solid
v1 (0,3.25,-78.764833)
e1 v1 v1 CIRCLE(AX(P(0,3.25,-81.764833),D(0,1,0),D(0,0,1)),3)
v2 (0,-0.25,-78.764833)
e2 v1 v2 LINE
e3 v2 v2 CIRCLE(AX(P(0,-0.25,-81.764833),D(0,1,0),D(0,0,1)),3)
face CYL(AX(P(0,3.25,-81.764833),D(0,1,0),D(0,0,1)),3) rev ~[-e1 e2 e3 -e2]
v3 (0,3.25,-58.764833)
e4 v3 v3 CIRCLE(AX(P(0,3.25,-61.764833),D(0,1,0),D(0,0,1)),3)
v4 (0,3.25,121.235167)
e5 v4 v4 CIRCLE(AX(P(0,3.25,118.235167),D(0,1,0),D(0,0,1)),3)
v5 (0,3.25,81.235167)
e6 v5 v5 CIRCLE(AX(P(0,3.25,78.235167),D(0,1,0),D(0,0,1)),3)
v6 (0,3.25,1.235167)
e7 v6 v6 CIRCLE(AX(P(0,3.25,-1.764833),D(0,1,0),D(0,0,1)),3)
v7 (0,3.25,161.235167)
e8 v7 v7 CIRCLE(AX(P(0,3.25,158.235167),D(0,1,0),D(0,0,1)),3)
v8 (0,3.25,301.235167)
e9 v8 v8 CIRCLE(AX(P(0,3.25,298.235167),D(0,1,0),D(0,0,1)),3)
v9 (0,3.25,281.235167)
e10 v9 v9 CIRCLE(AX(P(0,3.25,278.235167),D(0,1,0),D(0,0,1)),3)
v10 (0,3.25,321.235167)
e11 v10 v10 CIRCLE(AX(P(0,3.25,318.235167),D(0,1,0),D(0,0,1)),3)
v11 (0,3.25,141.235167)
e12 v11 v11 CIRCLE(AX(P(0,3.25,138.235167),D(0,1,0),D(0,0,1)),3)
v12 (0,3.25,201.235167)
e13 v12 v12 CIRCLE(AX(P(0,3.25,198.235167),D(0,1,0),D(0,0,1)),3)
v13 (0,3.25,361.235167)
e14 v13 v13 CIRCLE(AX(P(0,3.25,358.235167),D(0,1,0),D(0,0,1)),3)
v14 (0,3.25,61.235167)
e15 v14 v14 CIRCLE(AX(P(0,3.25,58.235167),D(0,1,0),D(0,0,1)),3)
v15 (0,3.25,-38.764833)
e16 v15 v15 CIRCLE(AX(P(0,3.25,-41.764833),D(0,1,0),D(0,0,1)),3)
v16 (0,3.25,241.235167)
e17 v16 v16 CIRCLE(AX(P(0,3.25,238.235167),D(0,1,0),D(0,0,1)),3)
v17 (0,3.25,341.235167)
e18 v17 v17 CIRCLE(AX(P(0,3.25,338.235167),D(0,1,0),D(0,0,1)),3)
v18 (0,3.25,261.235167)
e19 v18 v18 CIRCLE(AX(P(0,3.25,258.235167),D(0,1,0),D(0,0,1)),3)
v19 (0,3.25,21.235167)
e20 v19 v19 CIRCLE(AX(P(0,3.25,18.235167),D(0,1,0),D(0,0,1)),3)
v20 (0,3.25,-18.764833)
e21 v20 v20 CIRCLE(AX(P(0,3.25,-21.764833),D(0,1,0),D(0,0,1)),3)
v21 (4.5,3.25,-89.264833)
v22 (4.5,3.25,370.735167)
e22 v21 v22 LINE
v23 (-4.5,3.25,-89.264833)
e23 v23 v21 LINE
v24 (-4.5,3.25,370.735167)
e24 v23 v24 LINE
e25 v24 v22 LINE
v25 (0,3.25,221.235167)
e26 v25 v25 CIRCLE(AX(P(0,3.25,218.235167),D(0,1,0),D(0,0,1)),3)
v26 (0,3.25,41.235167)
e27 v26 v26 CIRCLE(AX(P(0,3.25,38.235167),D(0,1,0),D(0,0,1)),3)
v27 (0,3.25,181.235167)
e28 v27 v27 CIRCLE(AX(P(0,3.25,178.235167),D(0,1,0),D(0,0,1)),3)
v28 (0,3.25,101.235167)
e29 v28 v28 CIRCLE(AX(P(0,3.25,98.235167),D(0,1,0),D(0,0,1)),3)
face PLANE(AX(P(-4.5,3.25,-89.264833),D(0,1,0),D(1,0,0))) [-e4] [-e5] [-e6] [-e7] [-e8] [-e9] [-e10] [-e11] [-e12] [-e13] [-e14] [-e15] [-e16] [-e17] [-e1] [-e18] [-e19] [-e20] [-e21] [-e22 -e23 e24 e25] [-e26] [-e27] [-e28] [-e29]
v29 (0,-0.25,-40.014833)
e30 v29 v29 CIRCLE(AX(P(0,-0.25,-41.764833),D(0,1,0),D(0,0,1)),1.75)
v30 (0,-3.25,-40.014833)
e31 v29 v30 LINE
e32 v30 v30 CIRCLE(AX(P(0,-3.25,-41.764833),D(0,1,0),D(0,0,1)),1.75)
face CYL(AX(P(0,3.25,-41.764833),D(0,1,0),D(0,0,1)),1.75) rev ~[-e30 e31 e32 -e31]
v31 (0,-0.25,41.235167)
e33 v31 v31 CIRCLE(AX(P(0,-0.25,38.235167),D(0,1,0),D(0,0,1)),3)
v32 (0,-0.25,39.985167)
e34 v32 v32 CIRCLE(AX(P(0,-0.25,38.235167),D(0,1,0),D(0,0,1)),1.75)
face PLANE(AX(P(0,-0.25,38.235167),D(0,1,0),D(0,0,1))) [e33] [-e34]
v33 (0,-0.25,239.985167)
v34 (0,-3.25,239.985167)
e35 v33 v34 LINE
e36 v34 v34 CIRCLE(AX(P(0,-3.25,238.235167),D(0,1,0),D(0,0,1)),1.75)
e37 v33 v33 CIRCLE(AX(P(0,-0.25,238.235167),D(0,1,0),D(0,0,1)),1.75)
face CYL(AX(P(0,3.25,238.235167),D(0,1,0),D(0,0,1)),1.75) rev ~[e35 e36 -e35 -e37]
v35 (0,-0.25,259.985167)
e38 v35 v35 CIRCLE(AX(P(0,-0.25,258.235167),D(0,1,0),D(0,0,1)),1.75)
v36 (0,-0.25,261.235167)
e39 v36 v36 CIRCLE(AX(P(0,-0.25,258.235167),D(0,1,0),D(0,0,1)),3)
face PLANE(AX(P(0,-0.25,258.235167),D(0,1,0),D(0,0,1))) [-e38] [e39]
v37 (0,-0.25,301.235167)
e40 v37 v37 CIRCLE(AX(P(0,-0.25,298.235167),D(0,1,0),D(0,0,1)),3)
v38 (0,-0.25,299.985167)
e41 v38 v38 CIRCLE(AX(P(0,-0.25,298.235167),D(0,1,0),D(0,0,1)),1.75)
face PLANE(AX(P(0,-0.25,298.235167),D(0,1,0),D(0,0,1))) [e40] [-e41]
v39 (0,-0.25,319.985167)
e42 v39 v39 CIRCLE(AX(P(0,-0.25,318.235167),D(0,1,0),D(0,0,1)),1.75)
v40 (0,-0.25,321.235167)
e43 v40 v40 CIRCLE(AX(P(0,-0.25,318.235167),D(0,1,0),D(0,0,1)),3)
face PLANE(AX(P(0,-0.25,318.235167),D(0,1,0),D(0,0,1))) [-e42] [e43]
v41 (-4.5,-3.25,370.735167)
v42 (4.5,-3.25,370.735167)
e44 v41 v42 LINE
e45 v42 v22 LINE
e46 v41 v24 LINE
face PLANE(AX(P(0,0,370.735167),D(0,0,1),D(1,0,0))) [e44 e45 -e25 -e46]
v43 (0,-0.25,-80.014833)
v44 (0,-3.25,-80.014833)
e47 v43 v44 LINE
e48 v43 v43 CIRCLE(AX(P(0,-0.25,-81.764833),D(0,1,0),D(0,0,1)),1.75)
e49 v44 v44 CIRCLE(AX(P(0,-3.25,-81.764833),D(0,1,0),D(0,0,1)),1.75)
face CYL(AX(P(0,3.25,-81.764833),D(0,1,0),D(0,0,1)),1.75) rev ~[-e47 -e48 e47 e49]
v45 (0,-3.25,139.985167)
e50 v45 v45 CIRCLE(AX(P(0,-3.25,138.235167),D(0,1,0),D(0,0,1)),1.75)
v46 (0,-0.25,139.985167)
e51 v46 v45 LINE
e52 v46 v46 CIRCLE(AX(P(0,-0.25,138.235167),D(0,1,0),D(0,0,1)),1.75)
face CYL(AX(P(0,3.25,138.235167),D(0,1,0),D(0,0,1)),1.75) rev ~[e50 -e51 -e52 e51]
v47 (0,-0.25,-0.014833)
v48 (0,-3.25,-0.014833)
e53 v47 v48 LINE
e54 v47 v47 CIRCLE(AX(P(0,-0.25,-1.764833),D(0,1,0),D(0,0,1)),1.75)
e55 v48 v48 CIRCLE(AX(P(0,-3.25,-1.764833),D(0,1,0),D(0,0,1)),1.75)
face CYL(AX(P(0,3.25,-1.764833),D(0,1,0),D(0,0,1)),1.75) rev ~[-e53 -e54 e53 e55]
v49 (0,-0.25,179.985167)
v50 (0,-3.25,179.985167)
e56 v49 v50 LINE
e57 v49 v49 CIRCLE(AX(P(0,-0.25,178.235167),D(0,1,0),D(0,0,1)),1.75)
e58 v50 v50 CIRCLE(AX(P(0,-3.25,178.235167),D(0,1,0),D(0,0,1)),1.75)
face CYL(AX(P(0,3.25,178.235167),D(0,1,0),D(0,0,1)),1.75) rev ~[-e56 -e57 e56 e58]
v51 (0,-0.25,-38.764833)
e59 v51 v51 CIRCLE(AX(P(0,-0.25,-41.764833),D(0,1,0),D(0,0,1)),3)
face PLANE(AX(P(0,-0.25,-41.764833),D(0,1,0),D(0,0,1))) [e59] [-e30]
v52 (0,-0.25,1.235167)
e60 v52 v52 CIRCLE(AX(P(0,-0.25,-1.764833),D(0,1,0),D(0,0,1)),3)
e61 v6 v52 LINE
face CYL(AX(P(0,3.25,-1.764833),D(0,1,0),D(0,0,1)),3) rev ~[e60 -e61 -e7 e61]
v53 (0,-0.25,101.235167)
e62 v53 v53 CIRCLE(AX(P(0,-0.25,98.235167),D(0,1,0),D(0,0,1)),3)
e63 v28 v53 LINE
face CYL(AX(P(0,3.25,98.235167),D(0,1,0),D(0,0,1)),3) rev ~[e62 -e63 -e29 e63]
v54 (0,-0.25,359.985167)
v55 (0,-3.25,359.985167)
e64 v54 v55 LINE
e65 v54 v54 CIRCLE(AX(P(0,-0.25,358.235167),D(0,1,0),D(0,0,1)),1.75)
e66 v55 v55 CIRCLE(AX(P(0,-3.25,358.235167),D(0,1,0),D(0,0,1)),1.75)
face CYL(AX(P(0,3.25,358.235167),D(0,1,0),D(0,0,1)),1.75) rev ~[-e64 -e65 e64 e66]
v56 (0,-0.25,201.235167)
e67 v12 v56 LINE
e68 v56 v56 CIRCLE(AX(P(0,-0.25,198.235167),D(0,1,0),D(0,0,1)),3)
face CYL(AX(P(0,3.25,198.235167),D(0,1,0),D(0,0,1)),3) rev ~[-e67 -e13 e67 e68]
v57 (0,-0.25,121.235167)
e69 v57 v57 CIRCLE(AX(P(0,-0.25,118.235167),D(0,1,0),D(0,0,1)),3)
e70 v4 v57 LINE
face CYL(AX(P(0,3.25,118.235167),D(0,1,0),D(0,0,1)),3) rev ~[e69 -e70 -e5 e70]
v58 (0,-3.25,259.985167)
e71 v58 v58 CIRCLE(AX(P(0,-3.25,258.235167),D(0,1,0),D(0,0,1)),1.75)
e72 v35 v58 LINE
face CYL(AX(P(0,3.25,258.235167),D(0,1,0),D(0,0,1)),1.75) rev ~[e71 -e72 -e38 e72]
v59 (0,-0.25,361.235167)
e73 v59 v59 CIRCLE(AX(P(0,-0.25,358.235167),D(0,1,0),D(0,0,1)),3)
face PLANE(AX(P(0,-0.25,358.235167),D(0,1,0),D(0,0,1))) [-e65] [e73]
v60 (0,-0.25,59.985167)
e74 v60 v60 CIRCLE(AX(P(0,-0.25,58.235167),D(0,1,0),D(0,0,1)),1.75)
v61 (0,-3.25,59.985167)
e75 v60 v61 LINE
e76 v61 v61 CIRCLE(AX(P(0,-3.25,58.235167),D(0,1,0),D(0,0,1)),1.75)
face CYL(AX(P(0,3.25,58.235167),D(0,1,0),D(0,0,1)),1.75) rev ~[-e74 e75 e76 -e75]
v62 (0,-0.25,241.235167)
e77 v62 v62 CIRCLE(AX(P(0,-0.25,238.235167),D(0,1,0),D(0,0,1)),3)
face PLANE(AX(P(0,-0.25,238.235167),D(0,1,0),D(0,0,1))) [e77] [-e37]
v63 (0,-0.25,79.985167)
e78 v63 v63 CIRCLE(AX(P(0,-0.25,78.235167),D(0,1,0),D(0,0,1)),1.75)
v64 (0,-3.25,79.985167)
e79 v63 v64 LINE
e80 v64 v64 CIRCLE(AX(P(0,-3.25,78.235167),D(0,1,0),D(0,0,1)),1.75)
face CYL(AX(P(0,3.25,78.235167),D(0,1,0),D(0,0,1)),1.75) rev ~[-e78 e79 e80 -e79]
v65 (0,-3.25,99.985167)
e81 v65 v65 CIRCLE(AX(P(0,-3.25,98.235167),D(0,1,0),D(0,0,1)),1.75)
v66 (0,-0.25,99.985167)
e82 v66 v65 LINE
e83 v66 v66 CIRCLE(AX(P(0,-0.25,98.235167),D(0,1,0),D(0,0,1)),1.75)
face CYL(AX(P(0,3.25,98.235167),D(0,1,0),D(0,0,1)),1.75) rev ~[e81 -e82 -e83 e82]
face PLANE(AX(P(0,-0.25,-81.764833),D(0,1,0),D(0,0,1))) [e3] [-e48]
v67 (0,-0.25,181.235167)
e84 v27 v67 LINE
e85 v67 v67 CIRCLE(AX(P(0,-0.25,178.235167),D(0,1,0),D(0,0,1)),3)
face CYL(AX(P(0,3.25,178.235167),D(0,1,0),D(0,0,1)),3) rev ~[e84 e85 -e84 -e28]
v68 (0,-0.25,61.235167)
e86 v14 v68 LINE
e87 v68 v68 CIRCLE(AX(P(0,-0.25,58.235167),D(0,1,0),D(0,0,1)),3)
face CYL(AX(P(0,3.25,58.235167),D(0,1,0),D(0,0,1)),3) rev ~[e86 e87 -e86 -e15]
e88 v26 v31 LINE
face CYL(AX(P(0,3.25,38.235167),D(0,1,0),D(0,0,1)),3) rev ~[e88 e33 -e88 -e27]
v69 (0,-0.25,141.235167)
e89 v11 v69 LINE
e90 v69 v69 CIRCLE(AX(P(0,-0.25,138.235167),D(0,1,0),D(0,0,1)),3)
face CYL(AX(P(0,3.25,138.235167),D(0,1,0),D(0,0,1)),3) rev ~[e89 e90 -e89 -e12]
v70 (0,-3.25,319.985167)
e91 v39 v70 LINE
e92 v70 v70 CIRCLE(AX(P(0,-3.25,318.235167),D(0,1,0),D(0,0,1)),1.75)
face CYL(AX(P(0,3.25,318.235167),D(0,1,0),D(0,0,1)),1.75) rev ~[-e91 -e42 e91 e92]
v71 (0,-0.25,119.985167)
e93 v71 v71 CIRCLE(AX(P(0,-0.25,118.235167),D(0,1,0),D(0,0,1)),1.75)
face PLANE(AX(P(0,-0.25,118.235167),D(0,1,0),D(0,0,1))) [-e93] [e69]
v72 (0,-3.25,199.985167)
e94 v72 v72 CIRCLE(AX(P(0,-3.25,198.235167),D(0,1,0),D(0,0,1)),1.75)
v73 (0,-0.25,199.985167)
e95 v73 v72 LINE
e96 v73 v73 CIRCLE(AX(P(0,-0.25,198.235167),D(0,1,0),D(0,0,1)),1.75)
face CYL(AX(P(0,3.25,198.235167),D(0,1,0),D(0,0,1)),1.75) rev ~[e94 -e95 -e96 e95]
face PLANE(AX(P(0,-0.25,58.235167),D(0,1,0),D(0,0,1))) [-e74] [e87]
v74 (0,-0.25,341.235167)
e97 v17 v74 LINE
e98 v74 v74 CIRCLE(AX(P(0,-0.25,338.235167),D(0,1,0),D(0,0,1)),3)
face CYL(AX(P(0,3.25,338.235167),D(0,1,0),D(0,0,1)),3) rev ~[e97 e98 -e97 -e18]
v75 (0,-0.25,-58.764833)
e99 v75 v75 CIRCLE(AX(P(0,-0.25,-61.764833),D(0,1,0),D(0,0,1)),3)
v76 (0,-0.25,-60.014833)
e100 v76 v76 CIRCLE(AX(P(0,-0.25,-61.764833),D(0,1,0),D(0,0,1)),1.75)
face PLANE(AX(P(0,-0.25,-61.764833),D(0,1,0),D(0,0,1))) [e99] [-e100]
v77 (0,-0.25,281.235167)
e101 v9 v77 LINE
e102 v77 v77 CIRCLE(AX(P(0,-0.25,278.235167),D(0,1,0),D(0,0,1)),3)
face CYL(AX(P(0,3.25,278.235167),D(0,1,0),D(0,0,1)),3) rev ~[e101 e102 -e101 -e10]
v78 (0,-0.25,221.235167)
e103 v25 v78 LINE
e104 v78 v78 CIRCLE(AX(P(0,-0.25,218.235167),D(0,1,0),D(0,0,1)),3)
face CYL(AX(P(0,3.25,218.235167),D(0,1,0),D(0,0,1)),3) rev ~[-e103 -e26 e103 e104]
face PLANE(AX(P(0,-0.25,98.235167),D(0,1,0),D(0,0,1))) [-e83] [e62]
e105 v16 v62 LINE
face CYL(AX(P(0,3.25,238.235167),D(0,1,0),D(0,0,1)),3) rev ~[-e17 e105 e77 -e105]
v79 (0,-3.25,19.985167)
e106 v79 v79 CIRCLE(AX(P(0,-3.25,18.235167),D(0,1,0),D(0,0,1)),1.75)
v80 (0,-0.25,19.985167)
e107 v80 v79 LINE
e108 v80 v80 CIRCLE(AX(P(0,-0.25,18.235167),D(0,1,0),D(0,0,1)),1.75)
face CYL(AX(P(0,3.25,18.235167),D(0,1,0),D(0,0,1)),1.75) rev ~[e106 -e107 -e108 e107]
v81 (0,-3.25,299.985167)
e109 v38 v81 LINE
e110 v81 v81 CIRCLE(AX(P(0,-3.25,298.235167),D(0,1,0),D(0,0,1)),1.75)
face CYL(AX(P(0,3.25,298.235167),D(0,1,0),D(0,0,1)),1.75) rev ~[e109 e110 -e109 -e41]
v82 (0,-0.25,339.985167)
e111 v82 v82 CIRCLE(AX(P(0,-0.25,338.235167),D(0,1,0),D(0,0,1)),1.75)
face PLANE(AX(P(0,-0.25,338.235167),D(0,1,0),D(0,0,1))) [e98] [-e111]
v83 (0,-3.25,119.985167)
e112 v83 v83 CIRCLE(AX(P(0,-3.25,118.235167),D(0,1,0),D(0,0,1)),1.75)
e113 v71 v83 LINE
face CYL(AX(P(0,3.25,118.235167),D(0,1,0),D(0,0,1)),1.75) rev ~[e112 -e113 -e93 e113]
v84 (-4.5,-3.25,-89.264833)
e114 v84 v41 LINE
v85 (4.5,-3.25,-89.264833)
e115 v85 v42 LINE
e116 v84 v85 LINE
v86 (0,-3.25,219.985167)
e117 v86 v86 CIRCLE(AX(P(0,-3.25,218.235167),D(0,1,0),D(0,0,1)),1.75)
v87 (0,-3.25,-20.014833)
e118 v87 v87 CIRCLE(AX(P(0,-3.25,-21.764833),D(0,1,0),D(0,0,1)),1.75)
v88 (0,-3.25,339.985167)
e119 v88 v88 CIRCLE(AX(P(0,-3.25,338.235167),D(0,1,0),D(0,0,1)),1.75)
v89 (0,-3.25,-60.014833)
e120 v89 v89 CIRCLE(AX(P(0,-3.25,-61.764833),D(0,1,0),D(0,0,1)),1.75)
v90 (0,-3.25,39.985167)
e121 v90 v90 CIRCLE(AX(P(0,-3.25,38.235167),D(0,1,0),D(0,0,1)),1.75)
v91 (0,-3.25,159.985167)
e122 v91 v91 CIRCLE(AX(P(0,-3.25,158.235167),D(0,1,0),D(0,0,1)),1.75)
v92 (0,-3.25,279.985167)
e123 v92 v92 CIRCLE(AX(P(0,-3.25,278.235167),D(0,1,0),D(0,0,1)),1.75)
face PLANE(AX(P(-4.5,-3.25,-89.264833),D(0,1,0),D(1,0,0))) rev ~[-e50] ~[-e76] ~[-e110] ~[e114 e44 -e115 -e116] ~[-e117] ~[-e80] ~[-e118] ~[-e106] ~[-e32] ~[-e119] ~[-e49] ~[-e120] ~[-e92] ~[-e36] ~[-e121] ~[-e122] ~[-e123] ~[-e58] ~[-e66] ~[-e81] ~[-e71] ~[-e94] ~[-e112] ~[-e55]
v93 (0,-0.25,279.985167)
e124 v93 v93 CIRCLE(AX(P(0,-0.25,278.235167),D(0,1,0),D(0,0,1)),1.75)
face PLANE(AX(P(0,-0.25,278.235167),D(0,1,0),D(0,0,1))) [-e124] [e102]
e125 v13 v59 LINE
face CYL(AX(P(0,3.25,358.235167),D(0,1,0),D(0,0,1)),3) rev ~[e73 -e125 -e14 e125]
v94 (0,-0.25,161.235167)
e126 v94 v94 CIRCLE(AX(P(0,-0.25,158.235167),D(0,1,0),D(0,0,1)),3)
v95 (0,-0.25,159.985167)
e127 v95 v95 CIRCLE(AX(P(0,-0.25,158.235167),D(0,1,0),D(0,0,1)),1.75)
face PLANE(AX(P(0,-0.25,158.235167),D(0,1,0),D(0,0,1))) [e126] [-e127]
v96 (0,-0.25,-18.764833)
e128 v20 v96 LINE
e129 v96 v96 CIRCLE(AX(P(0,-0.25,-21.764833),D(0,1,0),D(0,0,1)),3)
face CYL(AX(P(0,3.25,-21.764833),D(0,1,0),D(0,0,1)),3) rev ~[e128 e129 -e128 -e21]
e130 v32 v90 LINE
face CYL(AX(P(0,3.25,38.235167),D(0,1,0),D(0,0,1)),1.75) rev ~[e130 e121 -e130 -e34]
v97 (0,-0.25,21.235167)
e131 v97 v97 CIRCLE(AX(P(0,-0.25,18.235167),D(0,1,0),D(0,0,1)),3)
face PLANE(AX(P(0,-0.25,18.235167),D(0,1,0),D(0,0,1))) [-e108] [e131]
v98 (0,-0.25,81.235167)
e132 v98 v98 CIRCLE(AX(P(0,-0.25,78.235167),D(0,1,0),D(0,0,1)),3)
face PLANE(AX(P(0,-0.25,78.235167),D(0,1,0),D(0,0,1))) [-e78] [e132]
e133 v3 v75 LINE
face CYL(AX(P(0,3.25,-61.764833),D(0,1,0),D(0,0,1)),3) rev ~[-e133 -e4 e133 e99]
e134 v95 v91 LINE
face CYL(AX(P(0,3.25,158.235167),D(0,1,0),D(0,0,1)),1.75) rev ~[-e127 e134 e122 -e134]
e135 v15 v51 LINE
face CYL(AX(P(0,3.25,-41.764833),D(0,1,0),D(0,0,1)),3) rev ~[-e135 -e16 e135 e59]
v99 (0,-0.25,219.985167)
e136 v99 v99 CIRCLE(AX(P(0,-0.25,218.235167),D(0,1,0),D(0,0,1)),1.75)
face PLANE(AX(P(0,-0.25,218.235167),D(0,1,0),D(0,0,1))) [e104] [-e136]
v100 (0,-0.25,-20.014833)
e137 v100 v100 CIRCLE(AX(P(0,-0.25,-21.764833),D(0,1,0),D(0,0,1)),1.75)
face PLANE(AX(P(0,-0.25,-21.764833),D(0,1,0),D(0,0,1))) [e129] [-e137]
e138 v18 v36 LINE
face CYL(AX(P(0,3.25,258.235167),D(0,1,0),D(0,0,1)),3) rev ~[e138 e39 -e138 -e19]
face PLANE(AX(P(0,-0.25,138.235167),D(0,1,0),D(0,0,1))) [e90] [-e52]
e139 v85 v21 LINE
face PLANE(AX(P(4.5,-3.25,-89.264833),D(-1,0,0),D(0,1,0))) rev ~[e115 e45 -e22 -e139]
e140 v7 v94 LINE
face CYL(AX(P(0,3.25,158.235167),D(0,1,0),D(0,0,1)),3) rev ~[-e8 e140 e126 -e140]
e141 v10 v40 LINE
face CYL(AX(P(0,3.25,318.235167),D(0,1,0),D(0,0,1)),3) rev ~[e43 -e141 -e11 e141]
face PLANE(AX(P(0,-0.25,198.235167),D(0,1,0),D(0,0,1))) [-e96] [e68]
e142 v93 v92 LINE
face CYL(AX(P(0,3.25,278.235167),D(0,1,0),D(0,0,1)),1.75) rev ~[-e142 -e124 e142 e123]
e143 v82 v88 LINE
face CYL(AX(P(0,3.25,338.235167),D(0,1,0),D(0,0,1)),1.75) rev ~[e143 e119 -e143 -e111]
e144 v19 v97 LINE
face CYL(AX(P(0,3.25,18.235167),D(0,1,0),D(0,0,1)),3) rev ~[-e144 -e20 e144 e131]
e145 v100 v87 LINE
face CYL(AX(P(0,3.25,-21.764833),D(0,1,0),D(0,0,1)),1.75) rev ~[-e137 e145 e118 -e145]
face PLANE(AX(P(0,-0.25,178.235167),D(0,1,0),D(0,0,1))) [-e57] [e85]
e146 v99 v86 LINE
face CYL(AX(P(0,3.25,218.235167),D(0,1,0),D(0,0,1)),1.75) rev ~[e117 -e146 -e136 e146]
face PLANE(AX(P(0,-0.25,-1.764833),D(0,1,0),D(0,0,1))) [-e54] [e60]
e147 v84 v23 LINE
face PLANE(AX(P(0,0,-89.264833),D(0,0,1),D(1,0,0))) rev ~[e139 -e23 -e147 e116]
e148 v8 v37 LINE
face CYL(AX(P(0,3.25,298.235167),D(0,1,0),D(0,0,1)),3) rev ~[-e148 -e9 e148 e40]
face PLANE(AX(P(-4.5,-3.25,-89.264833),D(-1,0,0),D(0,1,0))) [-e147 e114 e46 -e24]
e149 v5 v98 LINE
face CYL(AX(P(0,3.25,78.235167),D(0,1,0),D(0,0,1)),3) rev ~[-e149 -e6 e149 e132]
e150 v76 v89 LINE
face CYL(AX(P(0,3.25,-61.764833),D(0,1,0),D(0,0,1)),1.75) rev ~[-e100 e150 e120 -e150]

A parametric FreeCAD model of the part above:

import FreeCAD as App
import Part
import Sketcher
Q = App.Units.Quantity


def add_polygon(sketch, points):
    """Adds a closed chain of lines whose ends are joined by coincident constraints."""
    first, n = sketch.GeometryCount, len(points)
    for a, b in zip(points, points[1:] + points[:1]):
        sketch.addGeometry(Part.LineSegment(App.Vector(*a, 0), App.Vector(*b, 0)), False)
    for i in range(n):
        sketch.addConstraint(Sketcher.Constraint("Coincident", first + i, 2, first + (i + 1) % n, 1))

doc = App.newDocument("Part")
body = doc.addObject("PartDesign::Body", "Body")

sketch1 = body.newObject("Sketcher::SketchObject", "Sketch")
sketch1.AttachmentSupport = (doc.getObject("XY_Plane"), [""])
sketch1.MapMode = "FlatFace"
sketch1.AttachmentOffset = App.Placement(App.Vector(0, 0, -89.264833), App.Rotation())
add_polygon(sketch1, [(-4, 3), (-4, -3), (4, -3), (4, 3)])
sketch1.addConstraint([
    Sketcher.Constraint("Vertical", 0),
    Sketcher.Constraint("Horizontal", 1),
    Sketcher.Constraint("Vertical", 2),
    Sketcher.Constraint("Horizontal", 3),
    Sketcher.Constraint("Symmetric", 0, 2, 2, 2, -1, 1),
    Sketcher.Constraint("DistanceX", 1, 1, 1, 2, Q("9 mm")),
    Sketcher.Constraint("DistanceY", 0, 2, 0, 1, Q("6.5 mm")),
])
pad1 = body.newObject("PartDesign::Pad", "Pad")
pad1.Profile = sketch1
pad1.Length = 460

sketch2 = body.newObject("Sketcher::SketchObject", "Sketch001")
sketch2.AttachmentSupport = (doc.getObject("XZ_Plane"), [""])
sketch2.MapMode = "FlatFace"
sketch2.AttachmentOffset = App.Placement(App.Vector(0, 0, -3.25), App.Rotation())
sketch2.addGeometry([
    Part.Circle(App.Vector(0, -81.8, 0), App.Vector(0, 0, 1), 1.8),
    Part.Circle(App.Vector(0, -61.8, 0), App.Vector(0, 0, 1), 1.8),
    Part.Circle(App.Vector(0, -41.8, 0), App.Vector(0, 0, 1), 1.8),
    Part.Circle(App.Vector(0, -21.8, 0), App.Vector(0, 0, 1), 1.8),
    Part.Circle(App.Vector(0, -1.8, 0), App.Vector(0, 0, 1), 1.8),
    Part.Circle(App.Vector(0, 18.2, 0), App.Vector(0, 0, 1), 1.8),
    Part.Circle(App.Vector(0, 38.2, 0), App.Vector(0, 0, 1), 1.8),
    Part.Circle(App.Vector(0, 58.2, 0), App.Vector(0, 0, 1), 1.8),
    Part.Circle(App.Vector(0, 78.2, 0), App.Vector(0, 0, 1), 1.8),
    Part.Circle(App.Vector(0, 98.2, 0), App.Vector(0, 0, 1), 1.8),
    Part.Circle(App.Vector(0, 118.2, 0), App.Vector(0, 0, 1), 1.8),
    Part.Circle(App.Vector(0, 138.2, 0), App.Vector(0, 0, 1), 1.8),
    Part.Circle(App.Vector(0, 158.2, 0), App.Vector(0, 0, 1), 1.8),
    Part.Circle(App.Vector(0, 178.2, 0), App.Vector(0, 0, 1), 1.8),
    Part.Circle(App.Vector(0, 198.2, 0), App.Vector(0, 0, 1), 1.8),
    Part.Circle(App.Vector(0, 218.2, 0), App.Vector(0, 0, 1), 1.8),
    Part.Circle(App.Vector(0, 238.2, 0), App.Vector(0, 0, 1), 1.8),
    Part.Circle(App.Vector(0, 258.2, 0), App.Vector(0, 0, 1), 1.8),
    Part.Circle(App.Vector(0, 278.2, 0), App.Vector(0, 0, 1), 1.8),
    Part.Circle(App.Vector(0, 298.2, 0), App.Vector(0, 0, 1), 1.8),
    Part.Circle(App.Vector(0, 318.2, 0), App.Vector(0, 0, 1), 1.8),
    Part.Circle(App.Vector(0, 338.2, 0), App.Vector(0, 0, 1), 1.8),
    Part.Circle(App.Vector(0, 358.2, 0), App.Vector(0, 0, 1), 1.8),
    Part.Circle(App.Vector(0, 378.2, 0), App.Vector(0, 0, 1), 1.8),
    Part.Circle(App.Vector(0, 398.2, 0), App.Vector(0, 0, 1), 1.8),
    Part.Circle(App.Vector(0, 418.2, 0), App.Vector(0, 0, 1), 1.8),
    Part.Circle(App.Vector(0, 438.2, 0), App.Vector(0, 0, 1), 1.8),
    Part.Circle(App.Vector(0, 458.2, 0), App.Vector(0, 0, 1), 1.8),
    Part.Circle(App.Vector(0, 478.2, 0), App.Vector(0, 0, 1), 1.8),
    Part.Circle(App.Vector(0, 498.2, 0), App.Vector(0, 0, 1), 1.8),
    Part.Circle(App.Vector(0, 518.2, 0), App.Vector(0, 0, 1), 1.8),
    Part.Circle(App.Vector(0, 538.2, 0), App.Vector(0, 0, 1), 1.8),
    Part.Circle(App.Vector(0, 558.2, 0), App.Vector(0, 0, 1), 1.8),
    Part.Circle(App.Vector(0, 578.2, 0), App.Vector(0, 0, 1), 1.8),
    Part.Circle(App.Vector(0, 598.2, 0), App.Vector(0, 0, 1), 1.8),
    Part.Circle(App.Vector(0, 618.2, 0), App.Vector(0, 0, 1), 1.8),
    Part.Circle(App.Vector(0, 638.2, 0), App.Vector(0, 0, 1), 1.8),
    Part.Circle(App.Vector(0, 658.2, 0), App.Vector(0, 0, 1), 1.8),
    Part.Circle(App.Vector(0, 678.2, 0), App.Vector(0, 0, 1), 1.8),
    Part.Circle(App.Vector(0, 698.2, 0), App.Vector(0, 0, 1), 1.8),
    Part.Circle(App.Vector(0, 718.2, 0), App.Vector(0, 0, 1), 1.8),
    Part.Circle(App.Vector(0, 738.2, 0), App.Vector(0, 0, 1), 1.8),
    Part.Circle(App.Vector(0, 758.2, 0), App.Vector(0, 0, 1), 1.8),
    Part.Circle(App.Vector(0, 778.2, 0), App.Vector(0, 0, 1), 1.8),
    Part.Circle(App.Vector(0, 798.2, 0), App.Vector(0, 0, 1), 1.8),
    Part.Circle(App.Vector(0, 818.2, 0), App.Vector(0, 0, 1), 1.8),
    Part.Circle(App.Vector(0, 838.2, 0), App.Vector(0, 0, 1), 1.8),
    Part.Circle(App.Vector(0, 858.2, 0), App.Vector(0, 0, 1), 1.8),
    Part.Circle(App.Vector(0, 878.2, 0), App.Vector(0, 0, 1), 1.8),
    Part.Circle(App.Vector(0, 898.2, 0), App.Vector(0, 0, 1), 1.8),
    Part.Circle(App.Vector(0, 918.2, 0), App.Vector(0, 0, 1), 1.8),
    Part.Circle(App.Vector(0, 938.2, 0), App.Vector(0, 0, 1), 1.8),
    Part.Circle(App.Vector(0, 958.2, 0), App.Vector(0, 0, 1), 1.8),
    Part.Circle(App.Vector(0, 978.2, 0), App.Vector(0, 0, 1), 1.8),
    Part.Circle(App.Vector(0, 998.2, 0), App.Vector(0, 0, 1), 1.8),
    Part.Circle(App.Vector(0, 1018.2, 0), App.Vector(0, 0, 1), 1.8),
    Part.Circle(App.Vector(0, 1038.2, 0), App.Vector(0, 0, 1), 1.8),
    Part.Circle(App.Vector(0, 1058.2, 0), App.Vector(0, 0, 1), 1.8),
    Part.Circle(App.Vector(0, 1078.2, 0), App.Vector(0, 0, 1), 1.8),
    Part.Circle(App.Vector(0, 1098.2, 0), App.Vector(0, 0, 1), 1.8),
], False)
sketch2.addConstraint([
    Sketcher.Constraint("Equal", 0, 1),
    Sketcher.Constraint("Equal", 1, 2),
    Sketcher.Constraint("Equal", 2, 3),
    Sketcher.Constraint("Equal", 3, 4),
    Sketcher.Constraint("Equal", 4, 5),
    Sketcher.Constraint("Equal", 5, 6),
    Sketcher.Constraint("Equal", 6, 7),
    Sketcher.Constraint("Equal", 7, 8),
    Sketcher.Constraint("Equal", 8, 9),
    Sketcher.Constraint("Equal", 9, 10),
    Sketcher.Constraint("Equal", 10, 11),
    Sketcher.Constraint("Equal", 11, 12),
    Sketcher.Constraint("Equal", 12, 13),
    Sketcher.Constraint("Equal", 13, 14),
    Sketcher.Constraint("Equal", 14, 15),
    Sketcher.Constraint("Equal", 15, 16),
    Sketcher.Constraint("Equal", 16, 17),
    Sketcher.Constraint("Equal", 17, 18),
    Sketcher.Constraint("Equal", 18, 19),
    Sketcher.Constraint("Equal", 19, 20),
    Sketcher.Constraint("Equal", 20, 21),
    Sketcher.Constraint("Equal", 21, 22),
    Sketcher.Constraint("Equal", 22, 23),
    Sketcher.Constraint("Equal", 23, 24),
    Sketcher.Constraint("Equal", 24, 25),
    Sketcher.Constraint("Equal", 25, 26),
    Sketcher.Constraint("Equal", 26, 27),
    Sketcher.Constraint("Equal", 27, 28),
    Sketcher.Constraint("Equal", 28, 29),
    Sketcher.Constraint("Equal", 29, 30),
    Sketcher.Constraint("Equal", 30, 31),
    Sketcher.Constraint("Equal", 31, 32),
    Sketcher.Constraint("Equal", 32, 33),
    Sketcher.Constraint("Equal", 33, 34),
    Sketcher.Constraint("Equal", 34, 35),
    Sketcher.Constraint("Equal", 35, 36),
    Sketcher.Constraint("Equal", 36, 37),
    Sketcher.Constraint("Equal", 37, 38),
    Sketcher.Constraint("Equal", 38, 39),
    Sketcher.Constraint("Equal", 39, 40),
    Sketcher.Constraint("Equal", 40, 41),
    Sketcher.Constraint("Equal", 41, 42),
    Sketcher.Constraint("Equal", 42, 43),
    Sketcher.Constraint("Equal", 43, 44),
    Sketcher.Constraint("Equal", 44, 45),
    Sketcher.Constraint("Equal", 45, 46),
    Sketcher.Constraint("Equal", 46, 47),
    Sketcher.Constraint("Equal", 47, 48),
    Sketcher.Constraint("Equal", 48, 49),
    Sketcher.Constraint("Equal", 49, 50),
    Sketcher.Constraint("Equal", 50, 51),
    Sketcher.Constraint("Equal", 51, 52),
    Sketcher.Constraint("Equal", 52, 53),
    Sketcher.Constraint("Equal", 53, 54),
    Sketcher.Constraint("Equal", 54, 55),
    Sketcher.Constraint("Equal", 55, 56),
    Sketcher.Constraint("Equal", 56, 57),
    Sketcher.Constraint("Equal", 57, 58),
    Sketcher.Constraint("Equal", 58, 59),
    Sketcher.Constraint("PointOnObject", 0, 3, -2),
    Sketcher.Constraint("PointOnObject", 1, 3, -2),
    Sketcher.Constraint("PointOnObject", 2, 3, -2),
    Sketcher.Constraint("PointOnObject", 3, 3, -2),
    Sketcher.Constraint("PointOnObject", 4, 3, -2),
    Sketcher.Constraint("PointOnObject", 5, 3, -2),
    Sketcher.Constraint("PointOnObject", 6, 3, -2),
    Sketcher.Constraint("PointOnObject", 7, 3, -2),
    Sketcher.Constraint("PointOnObject", 8, 3, -2),
    Sketcher.Constraint("PointOnObject", 9, 3, -2),
    Sketcher.Constraint("PointOnObject", 10, 3, -2),
    Sketcher.Constraint("PointOnObject", 11, 3, -2),
    Sketcher.Constraint("PointOnObject", 12, 3, -2),
    Sketcher.Constraint("PointOnObject", 13, 3, -2),
    Sketcher.Constraint("PointOnObject", 14, 3, -2),
    Sketcher.Constraint("PointOnObject", 15, 3, -2),
    Sketcher.Constraint("PointOnObject", 16, 3, -2),
    Sketcher.Constraint("PointOnObject", 17, 3, -2),
    Sketcher.Constraint("PointOnObject", 18, 3, -2),
    Sketcher.Constraint("PointOnObject", 19, 3, -2),
    Sketcher.Constraint("PointOnObject", 20, 3, -2),
    Sketcher.Constraint("PointOnObject", 21, 3, -2),
    Sketcher.Constraint("PointOnObject", 22, 3, -2),
    Sketcher.Constraint("PointOnObject", 23, 3, -2),
    Sketcher.Constraint("PointOnObject", 24, 3, -2),
    Sketcher.Constraint("PointOnObject", 25, 3, -2),
    Sketcher.Constraint("PointOnObject", 26, 3, -2),
    Sketcher.Constraint("PointOnObject", 27, 3, -2),
    Sketcher.Constraint("PointOnObject", 28, 3, -2),
    Sketcher.Constraint("PointOnObject", 29, 3, -2),
    Sketcher.Constraint("PointOnObject", 30, 3, -2),
    Sketcher.Constraint("PointOnObject", 31, 3, -2),
    Sketcher.Constraint("PointOnObject", 32, 3, -2),
    Sketcher.Constraint("PointOnObject", 33, 3, -2),
    Sketcher.Constraint("PointOnObject", 34, 3, -2),
    Sketcher.Constraint("PointOnObject", 35, 3, -2),
    Sketcher.Constraint("PointOnObject", 36, 3, -2),
    Sketcher.Constraint("PointOnObject", 37, 3, -2),
    Sketcher.Constraint("PointOnObject", 38, 3, -2),
    Sketcher.Constraint("PointOnObject", 39, 3, -2),
    Sketcher.Constraint("PointOnObject", 40, 3, -2),
    Sketcher.Constraint("PointOnObject", 41, 3, -2),
    Sketcher.Constraint("PointOnObject", 42, 3, -2),
    Sketcher.Constraint("PointOnObject", 43, 3, -2),
    Sketcher.Constraint("PointOnObject", 44, 3, -2),
    Sketcher.Constraint("PointOnObject", 45, 3, -2),
    Sketcher.Constraint("PointOnObject", 46, 3, -2),
    Sketcher.Constraint("PointOnObject", 47, 3, -2),
    Sketcher.Constraint("PointOnObject", 48, 3, -2),
    Sketcher.Constraint("PointOnObject", 49, 3, -2),
    Sketcher.Constraint("PointOnObject", 50, 3, -2),
    Sketcher.Constraint("PointOnObject", 51, 3, -2),
    Sketcher.Constraint("PointOnObject", 52, 3, -2),
    Sketcher.Constraint("PointOnObject", 53, 3, -2),
    Sketcher.Constraint("PointOnObject", 54, 3, -2),
    Sketcher.Constraint("PointOnObject", 55, 3, -2),
    Sketcher.Constraint("PointOnObject", 56, 3, -2),
    Sketcher.Constraint("PointOnObject", 57, 3, -2),
    Sketcher.Constraint("PointOnObject", 58, 3, -2),
    Sketcher.Constraint("PointOnObject", 59, 3, -2),
    Sketcher.Constraint("Diameter", 0, Q("3.5 mm")),
    Sketcher.Constraint("DistanceY", 0, 3, 1, 3, Q("20 mm")),
    Sketcher.Constraint("DistanceY", 1, 3, 2, 3, Q("20 mm")),
    Sketcher.Constraint("DistanceY", 2, 3, 3, 3, Q("20 mm")),
    Sketcher.Constraint("DistanceY", 3, 3, 4, 3, Q("20 mm")),
    Sketcher.Constraint("DistanceY", 4, 3, 5, 3, Q("20 mm")),
    Sketcher.Constraint("DistanceY", 5, 3, 6, 3, Q("20 mm")),
    Sketcher.Constraint("DistanceY", 6, 3, 7, 3, Q("20 mm")),
    Sketcher.Constraint("DistanceY", 7, 3, 8, 3, Q("20 mm")),
    Sketcher.Constraint("DistanceY", 8, 3, 9, 3, Q("20 mm")),
    Sketcher.Constraint("DistanceY", 9, 3, 10, 3, Q("20 mm")),
    Sketcher.Constraint("DistanceY", 10, 3, 11, 3, Q("20 mm")),
    Sketcher.Constraint("DistanceY", 11, 3, 12, 3, Q("20 mm")),
    Sketcher.Constraint("DistanceY", 12, 3, 13, 3, Q("20 mm")),
    Sketcher.Constraint("DistanceY", 13, 3, 14, 3, Q("20 mm")),
    Sketcher.Constraint("DistanceY", 14, 3, 15, 3, Q("20 mm")),
    Sketcher.Constraint("DistanceY", 15, 3, 16, 3, Q("20 mm")),
    Sketcher.Constraint("DistanceY", 16, 3, 17, 3, Q("20 mm")),
    Sketcher.Constraint("DistanceY", 17, 3, 18, 3, Q("20 mm")),
    Sketcher.Constraint("DistanceY", 18, 3, 19, 3, Q("20 mm")),
    Sketcher.Constraint("DistanceY", 19, 3, 20, 3, Q("20 mm")),
    Sketcher.Constraint("DistanceY", 20, 3, 21, 3, Q("20 mm")),
    Sketcher.Constraint("DistanceY", 21, 3, 22, 3, Q("20 mm")),
    Sketcher.Constraint("DistanceY", 22, 3, 23, 3, Q("20 mm")),
    Sketcher.Constraint("DistanceY", 23, 3, 24, 3, Q("20 mm")),
    Sketcher.Constraint("DistanceY", 24, 3, 25, 3, Q("20 mm")),
    Sketcher.Constraint("DistanceY", 25, 3, 26, 3, Q("20 mm")),
    Sketcher.Constraint("DistanceY", 26, 3, 27, 3, Q("20 mm")),
    Sketcher.Constraint("DistanceY", 27, 3, 28, 3, Q("20 mm")),
    Sketcher.Constraint("DistanceY", 28, 3, 29, 3, Q("20 mm")),
    Sketcher.Constraint("DistanceY", 29, 3, 30, 3, Q("20 mm")),
    Sketcher.Constraint("DistanceY", 30, 3, 31, 3, Q("20 mm")),
    Sketcher.Constraint("DistanceY", 31, 3, 32, 3, Q("20 mm")),
    Sketcher.Constraint("DistanceY", 32, 3, 33, 3, Q("20 mm")),
    Sketcher.Constraint("DistanceY", 33, 3, 34, 3, Q("20 mm")),
    Sketcher.Constraint("DistanceY", 34, 3, 35, 3, Q("20 mm")),
    Sketcher.Constraint("DistanceY", 35, 3, 36, 3, Q("20 mm")),
    Sketcher.Constraint("DistanceY", 36, 3, 37, 3, Q("20 mm")),
    Sketcher.Constraint("DistanceY", 37, 3, 38, 3, Q("20 mm")),
    Sketcher.Constraint("DistanceY", 38, 3, 39, 3, Q("20 mm")),
    Sketcher.Constraint("DistanceY", 39, 3, 40, 3, Q("20 mm")),
    Sketcher.Constraint("DistanceY", 40, 3, 41, 3, Q("20 mm")),
    Sketcher.Constraint("DistanceY", 41, 3, 42, 3, Q("20 mm")),
    Sketcher.Constraint("DistanceY", 42, 3, 43, 3, Q("20 mm")),
    Sketcher.Constraint("DistanceY", 43, 3, 44, 3, Q("20 mm")),
    Sketcher.Constraint("DistanceY", 44, 3, 45, 3, Q("20 mm")),
    Sketcher.Constraint("DistanceY", 45, 3, 46, 3, Q("20 mm")),
    Sketcher.Constraint("DistanceY", 46, 3, 47, 3, Q("20 mm")),
    Sketcher.Constraint("DistanceY", 47, 3, 48, 3, Q("20 mm")),
    Sketcher.Constraint("DistanceY", 48, 3, 49, 3, Q("20 mm")),
    Sketcher.Constraint("DistanceY", 49, 3, 50, 3, Q("20 mm")),
    Sketcher.Constraint("DistanceY", 50, 3, 51, 3, Q("20 mm")),
    Sketcher.Constraint("DistanceY", 51, 3, 52, 3, Q("20 mm")),
    Sketcher.Constraint("DistanceY", 52, 3, 53, 3, Q("20 mm")),
    Sketcher.Constraint("DistanceY", 53, 3, 54, 3, Q("20 mm")),
    Sketcher.Constraint("DistanceY", 54, 3, 55, 3, Q("20 mm")),
    Sketcher.Constraint("DistanceY", 55, 3, 56, 3, Q("20 mm")),
    Sketcher.Constraint("DistanceY", 56, 3, 57, 3, Q("20 mm")),
    Sketcher.Constraint("DistanceY", 57, 3, 58, 3, Q("20 mm")),
    Sketcher.Constraint("DistanceY", 58, 3, 59, 3, Q("20 mm")),
    Sketcher.Constraint("DistanceY", 0, 3, -1, 1, Q("81.764833 mm")),
])
pocket1 = body.newObject("PartDesign::Pocket", "Pocket")
pocket1.Profile = sketch2
pocket1.Type = "ThroughAll"
pocket1.Reversed = True

sketch3 = body.newObject("Sketcher::SketchObject", "Sketch002")
sketch3.AttachmentSupport = (doc.getObject("XZ_Plane"), [""])
sketch3.MapMode = "FlatFace"
sketch3.AttachmentOffset = App.Placement(App.Vector(0, 0, -3.25), App.Rotation())
sketch3.addGeometry([
    Part.Circle(App.Vector(0, -81.8, 0), App.Vector(0, 0, 1), 3),
    Part.Circle(App.Vector(0, -61.8, 0), App.Vector(0, 0, 1), 3),
    Part.Circle(App.Vector(0, -41.8, 0), App.Vector(0, 0, 1), 3),
    Part.Circle(App.Vector(0, -21.8, 0), App.Vector(0, 0, 1), 3),
    Part.Circle(App.Vector(0, -1.8, 0), App.Vector(0, 0, 1), 3),
    Part.Circle(App.Vector(0, 18.2, 0), App.Vector(0, 0, 1), 3),
    Part.Circle(App.Vector(0, 38.2, 0), App.Vector(0, 0, 1), 3),
    Part.Circle(App.Vector(0, 58.2, 0), App.Vector(0, 0, 1), 3),
    Part.Circle(App.Vector(0, 78.2, 0), App.Vector(0, 0, 1), 3),
    Part.Circle(App.Vector(0, 98.2, 0), App.Vector(0, 0, 1), 3),
    Part.Circle(App.Vector(0, 118.2, 0), App.Vector(0, 0, 1), 3),
    Part.Circle(App.Vector(0, 138.2, 0), App.Vector(0, 0, 1), 3),
    Part.Circle(App.Vector(0, 158.2, 0), App.Vector(0, 0, 1), 3),
    Part.Circle(App.Vector(0, 178.2, 0), App.Vector(0, 0, 1), 3),
    Part.Circle(App.Vector(0, 198.2, 0), App.Vector(0, 0, 1), 3),
    Part.Circle(App.Vector(0, 218.2, 0), App.Vector(0, 0, 1), 3),
    Part.Circle(App.Vector(0, 238.2, 0), App.Vector(0, 0, 1), 3),
    Part.Circle(App.Vector(0, 258.2, 0), App.Vector(0, 0, 1), 3),
    Part.Circle(App.Vector(0, 278.2, 0), App.Vector(0, 0, 1), 3),
    Part.Circle(App.Vector(0, 298.2, 0), App.Vector(0, 0, 1), 3),
    Part.Circle(App.Vector(0, 318.2, 0), App.Vector(0, 0, 1), 3),
    Part.Circle(App.Vector(0, 338.2, 0), App.Vector(0, 0, 1), 3),
    Part.Circle(App.Vector(0, 358.2, 0), App.Vector(0, 0, 1), 3),
    Part.Circle(App.Vector(0, 378.2, 0), App.Vector(0, 0, 1), 3),
    Part.Circle(App.Vector(0, 398.2, 0), App.Vector(0, 0, 1), 3),
    Part.Circle(App.Vector(0, 418.2, 0), App.Vector(0, 0, 1), 3),
    Part.Circle(App.Vector(0, 438.2, 0), App.Vector(0, 0, 1), 3),
    Part.Circle(App.Vector(0, 458.2, 0), App.Vector(0, 0, 1), 3),
    Part.Circle(App.Vector(0, 478.2, 0), App.Vector(0, 0, 1), 3),
    Part.Circle(App.Vector(0, 498.2, 0), App.Vector(0, 0, 1), 3),
    Part.Circle(App.Vector(0, 518.2, 0), App.Vector(0, 0, 1), 3),
    Part.Circle(App.Vector(0, 538.2, 0), App.Vector(0, 0, 1), 3),
    Part.Circle(App.Vector(0, 558.2, 0), App.Vector(0, 0, 1), 3),
    Part.Circle(App.Vector(0, 578.2, 0), App.Vector(0, 0, 1), 3),
    Part.Circle(App.Vector(0, 598.2, 0), App.Vector(0, 0, 1), 3),
    Part.Circle(App.Vector(0, 618.2, 0), App.Vector(0, 0, 1), 3),
    Part.Circle(App.Vector(0, 638.2, 0), App.Vector(0, 0, 1), 3),
    Part.Circle(App.Vector(0, 658.2, 0), App.Vector(0, 0, 1), 3),
    Part.Circle(App.Vector(0, 678.2, 0), App.Vector(0, 0, 1), 3),
    Part.Circle(App.Vector(0, 698.2, 0), App.Vector(0, 0, 1), 3),
    Part.Circle(App.Vector(0, 718.2, 0), App.Vector(0, 0, 1), 3),
    Part.Circle(App.Vector(0, 738.2, 0), App.Vector(0, 0, 1), 3),
    Part.Circle(App.Vector(0, 758.2, 0), App.Vector(0, 0, 1), 3),
    Part.Circle(App.Vector(0, 778.2, 0), App.Vector(0, 0, 1), 3),
    Part.Circle(App.Vector(0, 798.2, 0), App.Vector(0, 0, 1), 3),
    Part.Circle(App.Vector(0, 818.2, 0), App.Vector(0, 0, 1), 3),
    Part.Circle(App.Vector(0, 838.2, 0), App.Vector(0, 0, 1), 3),
    Part.Circle(App.Vector(0, 858.2, 0), App.Vector(0, 0, 1), 3),
    Part.Circle(App.Vector(0, 878.2, 0), App.Vector(0, 0, 1), 3),
    Part.Circle(App.Vector(0, 898.2, 0), App.Vector(0, 0, 1), 3),
    Part.Circle(App.Vector(0, 918.2, 0), App.Vector(0, 0, 1), 3),
    Part.Circle(App.Vector(0, 938.2, 0), App.Vector(0, 0, 1), 3),
    Part.Circle(App.Vector(0, 958.2, 0), App.Vector(0, 0, 1), 3),
    Part.Circle(App.Vector(0, 978.2, 0), App.Vector(0, 0, 1), 3),
    Part.Circle(App.Vector(0, 998.2, 0), App.Vector(0, 0, 1), 3),
    Part.Circle(App.Vector(0, 1018.2, 0), App.Vector(0, 0, 1), 3),
    Part.Circle(App.Vector(0, 1038.2, 0), App.Vector(0, 0, 1), 3),
    Part.Circle(App.Vector(0, 1058.2, 0), App.Vector(0, 0, 1), 3),
    Part.Circle(App.Vector(0, 1078.2, 0), App.Vector(0, 0, 1), 3),
    Part.Circle(App.Vector(0, 1098.2, 0), App.Vector(0, 0, 1), 3),
], False)
sketch3.addConstraint([
    Sketcher.Constraint("Equal", 0, 1),
    Sketcher.Constraint("Equal", 1, 2),
    Sketcher.Constraint("Equal", 2, 3),
    Sketcher.Constraint("Equal", 3, 4),
    Sketcher.Constraint("Equal", 4, 5),
    Sketcher.Constraint("Equal", 5, 6),
    Sketcher.Constraint("Equal", 6, 7),
    Sketcher.Constraint("Equal", 7, 8),
    Sketcher.Constraint("Equal", 8, 9),
    Sketcher.Constraint("Equal", 9, 10),
    Sketcher.Constraint("Equal", 10, 11),
    Sketcher.Constraint("Equal", 11, 12),
    Sketcher.Constraint("Equal", 12, 13),
    Sketcher.Constraint("Equal", 13, 14),
    Sketcher.Constraint("Equal", 14, 15),
    Sketcher.Constraint("Equal", 15, 16),
    Sketcher.Constraint("Equal", 16, 17),
    Sketcher.Constraint("Equal", 17, 18),
    Sketcher.Constraint("Equal", 18, 19),
    Sketcher.Constraint("Equal", 19, 20),
    Sketcher.Constraint("Equal", 20, 21),
    Sketcher.Constraint("Equal", 21, 22),
    Sketcher.Constraint("Equal", 22, 23),
    Sketcher.Constraint("Equal", 23, 24),
    Sketcher.Constraint("Equal", 24, 25),
    Sketcher.Constraint("Equal", 25, 26),
    Sketcher.Constraint("Equal", 26, 27),
    Sketcher.Constraint("Equal", 27, 28),
    Sketcher.Constraint("Equal", 28, 29),
    Sketcher.Constraint("Equal", 29, 30),
    Sketcher.Constraint("Equal", 30, 31),
    Sketcher.Constraint("Equal", 31, 32),
    Sketcher.Constraint("Equal", 32, 33),
    Sketcher.Constraint("Equal", 33, 34),
    Sketcher.Constraint("Equal", 34, 35),
    Sketcher.Constraint("Equal", 35, 36),
    Sketcher.Constraint("Equal", 36, 37),
    Sketcher.Constraint("Equal", 37, 38),
    Sketcher.Constraint("Equal", 38, 39),
    Sketcher.Constraint("Equal", 39, 40),
    Sketcher.Constraint("Equal", 40, 41),
    Sketcher.Constraint("Equal", 41, 42),
    Sketcher.Constraint("Equal", 42, 43),
    Sketcher.Constraint("Equal", 43, 44),
    Sketcher.Constraint("Equal", 44, 45),
    Sketcher.Constraint("Equal", 45, 46),
    Sketcher.Constraint("Equal", 46, 47),
    Sketcher.Constraint("Equal", 47, 48),
    Sketcher.Constraint("Equal", 48, 49),
    Sketcher.Constraint("Equal", 49, 50),
    Sketcher.Constraint("Equal", 50, 51),
    Sketcher.Constraint("Equal", 51, 52),
    Sketcher.Constraint("Equal", 52, 53),
    Sketcher.Constraint("Equal", 53, 54),
    Sketcher.Constraint("Equal", 54, 55),
    Sketcher.Constraint("Equal", 55, 56),
    Sketcher.Constraint("Equal", 56, 57),
    Sketcher.Constraint("Equal", 57, 58),
    Sketcher.Constraint("Equal", 58, 59),
    Sketcher.Constraint("PointOnObject", 0, 3, -2),
    Sketcher.Constraint("PointOnObject", 1, 3, -2),
    Sketcher.Constraint("PointOnObject", 2, 3, -2),
    Sketcher.Constraint("PointOnObject", 3, 3, -2),
    Sketcher.Constraint("PointOnObject", 4, 3, -2),
    Sketcher.Constraint("PointOnObject", 5, 3, -2),
    Sketcher.Constraint("PointOnObject", 6, 3, -2),
    Sketcher.Constraint("PointOnObject", 7, 3, -2),
    Sketcher.Constraint("PointOnObject", 8, 3, -2),
    Sketcher.Constraint("PointOnObject", 9, 3, -2),
    Sketcher.Constraint("PointOnObject", 10, 3, -2),
    Sketcher.Constraint("PointOnObject", 11, 3, -2),
    Sketcher.Constraint("PointOnObject", 12, 3, -2),
    Sketcher.Constraint("PointOnObject", 13, 3, -2),
    Sketcher.Constraint("PointOnObject", 14, 3, -2),
    Sketcher.Constraint("PointOnObject", 15, 3, -2),
    Sketcher.Constraint("PointOnObject", 16, 3, -2),
    Sketcher.Constraint("PointOnObject", 17, 3, -2),
    Sketcher.Constraint("PointOnObject", 18, 3, -2),
    Sketcher.Constraint("PointOnObject", 19, 3, -2),
    Sketcher.Constraint("PointOnObject", 20, 3, -2),
    Sketcher.Constraint("PointOnObject", 21, 3, -2),
    Sketcher.Constraint("PointOnObject", 22, 3, -2),
    Sketcher.Constraint("PointOnObject", 23, 3, -2),
    Sketcher.Constraint("PointOnObject", 24, 3, -2),
    Sketcher.Constraint("PointOnObject", 25, 3, -2),
    Sketcher.Constraint("PointOnObject", 26, 3, -2),
    Sketcher.Constraint("PointOnObject", 27, 3, -2),
    Sketcher.Constraint("PointOnObject", 28, 3, -2),
    Sketcher.Constraint("PointOnObject", 29, 3, -2),
    Sketcher.Constraint("PointOnObject", 30, 3, -2),
    Sketcher.Constraint("PointOnObject", 31, 3, -2),
    Sketcher.Constraint("PointOnObject", 32, 3, -2),
    Sketcher.Constraint("PointOnObject", 33, 3, -2),
    Sketcher.Constraint("PointOnObject", 34, 3, -2),
    Sketcher.Constraint("PointOnObject", 35, 3, -2),
    Sketcher.Constraint("PointOnObject", 36, 3, -2),
    Sketcher.Constraint("PointOnObject", 37, 3, -2),
    Sketcher.Constraint("PointOnObject", 38, 3, -2),
    Sketcher.Constraint("PointOnObject", 39, 3, -2),
    Sketcher.Constraint("PointOnObject", 40, 3, -2),
    Sketcher.Constraint("PointOnObject", 41, 3, -2),
    Sketcher.Constraint("PointOnObject", 42, 3, -2),
    Sketcher.Constraint("PointOnObject", 43, 3, -2),
    Sketcher.Constraint("PointOnObject", 44, 3, -2),
    Sketcher.Constraint("PointOnObject", 45, 3, -2),
    Sketcher.Constraint("PointOnObject", 46, 3, -2),
    Sketcher.Constraint("PointOnObject", 47, 3, -2),
    Sketcher.Constraint("PointOnObject", 48, 3, -2),
    Sketcher.Constraint("PointOnObject", 49, 3, -2),
    Sketcher.Constraint("PointOnObject", 50, 3, -2),
    Sketcher.Constraint("PointOnObject", 51, 3, -2),
    Sketcher.Constraint("PointOnObject", 52, 3, -2),
    Sketcher.Constraint("PointOnObject", 53, 3, -2),
    Sketcher.Constraint("PointOnObject", 54, 3, -2),
    Sketcher.Constraint("PointOnObject", 55, 3, -2),
    Sketcher.Constraint("PointOnObject", 56, 3, -2),
    Sketcher.Constraint("PointOnObject", 57, 3, -2),
    Sketcher.Constraint("PointOnObject", 58, 3, -2),
    Sketcher.Constraint("PointOnObject", 59, 3, -2),
    Sketcher.Constraint("Diameter", 0, Q("6 mm")),
    Sketcher.Constraint("DistanceY", 0, 3, 1, 3, Q("20 mm")),
    Sketcher.Constraint("DistanceY", 1, 3, 2, 3, Q("20 mm")),
    Sketcher.Constraint("DistanceY", 2, 3, 3, 3, Q("20 mm")),
    Sketcher.Constraint("DistanceY", 3, 3, 4, 3, Q("20 mm")),
    Sketcher.Constraint("DistanceY", 4, 3, 5, 3, Q("20 mm")),
    Sketcher.Constraint("DistanceY", 5, 3, 6, 3, Q("20 mm")),
    Sketcher.Constraint("DistanceY", 6, 3, 7, 3, Q("20 mm")),
    Sketcher.Constraint("DistanceY", 7, 3, 8, 3, Q("20 mm")),
    Sketcher.Constraint("DistanceY", 8, 3, 9, 3, Q("20 mm")),
    Sketcher.Constraint("DistanceY", 9, 3, 10, 3, Q("20 mm")),
    Sketcher.Constraint("DistanceY", 10, 3, 11, 3, Q("20 mm")),
    Sketcher.Constraint("DistanceY", 11, 3, 12, 3, Q("20 mm")),
    Sketcher.Constraint("DistanceY", 12, 3, 13, 3, Q("20 mm")),
    Sketcher.Constraint("DistanceY", 13, 3, 14, 3, Q("20 mm")),
    Sketcher.Constraint("DistanceY", 14, 3, 15, 3, Q("20 mm")),
    Sketcher.Constraint("DistanceY", 15, 3, 16, 3, Q("20 mm")),
    Sketcher.Constraint("DistanceY", 16, 3, 17, 3, Q("20 mm")),
    Sketcher.Constraint("DistanceY", 17, 3, 18, 3, Q("20 mm")),
    Sketcher.Constraint("DistanceY", 18, 3, 19, 3, Q("20 mm")),
    Sketcher.Constraint("DistanceY", 19, 3, 20, 3, Q("20 mm")),
    Sketcher.Constraint("DistanceY", 20, 3, 21, 3, Q("20 mm")),
    Sketcher.Constraint("DistanceY", 21, 3, 22, 3, Q("20 mm")),
    Sketcher.Constraint("DistanceY", 22, 3, 23, 3, Q("20 mm")),
    Sketcher.Constraint("DistanceY", 23, 3, 24, 3, Q("20 mm")),
    Sketcher.Constraint("DistanceY", 24, 3, 25, 3, Q("20 mm")),
    Sketcher.Constraint("DistanceY", 25, 3, 26, 3, Q("20 mm")),
    Sketcher.Constraint("DistanceY", 26, 3, 27, 3, Q("20 mm")),
    Sketcher.Constraint("DistanceY", 27, 3, 28, 3, Q("20 mm")),
    Sketcher.Constraint("DistanceY", 28, 3, 29, 3, Q("20 mm")),
    Sketcher.Constraint("DistanceY", 29, 3, 30, 3, Q("20 mm")),
    Sketcher.Constraint("DistanceY", 30, 3, 31, 3, Q("20 mm")),
    Sketcher.Constraint("DistanceY", 31, 3, 32, 3, Q("20 mm")),
    Sketcher.Constraint("DistanceY", 32, 3, 33, 3, Q("20 mm")),
    Sketcher.Constraint("DistanceY", 33, 3, 34, 3, Q("20 mm")),
    Sketcher.Constraint("DistanceY", 34, 3, 35, 3, Q("20 mm")),
    Sketcher.Constraint("DistanceY", 35, 3, 36, 3, Q("20 mm")),
    Sketcher.Constraint("DistanceY", 36, 3, 37, 3, Q("20 mm")),
    Sketcher.Constraint("DistanceY", 37, 3, 38, 3, Q("20 mm")),
    Sketcher.Constraint("DistanceY", 38, 3, 39, 3, Q("20 mm")),
    Sketcher.Constraint("DistanceY", 39, 3, 40, 3, Q("20 mm")),
    Sketcher.Constraint("DistanceY", 40, 3, 41, 3, Q("20 mm")),
    Sketcher.Constraint("DistanceY", 41, 3, 42, 3, Q("20 mm")),
    Sketcher.Constraint("DistanceY", 42, 3, 43, 3, Q("20 mm")),
    Sketcher.Constraint("DistanceY", 43, 3, 44, 3, Q("20 mm")),
    Sketcher.Constraint("DistanceY", 44, 3, 45, 3, Q("20 mm")),
    Sketcher.Constraint("DistanceY", 45, 3, 46, 3, Q("20 mm")),
    Sketcher.Constraint("DistanceY", 46, 3, 47, 3, Q("20 mm")),
    Sketcher.Constraint("DistanceY", 47, 3, 48, 3, Q("20 mm")),
    Sketcher.Constraint("DistanceY", 48, 3, 49, 3, Q("20 mm")),
    Sketcher.Constraint("DistanceY", 49, 3, 50, 3, Q("20 mm")),
    Sketcher.Constraint("DistanceY", 50, 3, 51, 3, Q("20 mm")),
    Sketcher.Constraint("DistanceY", 51, 3, 52, 3, Q("20 mm")),
    Sketcher.Constraint("DistanceY", 52, 3, 53, 3, Q("20 mm")),
    Sketcher.Constraint("DistanceY", 53, 3, 54, 3, Q("20 mm")),
    Sketcher.Constraint("DistanceY", 54, 3, 55, 3, Q("20 mm")),
    Sketcher.Constraint("DistanceY", 55, 3, 56, 3, Q("20 mm")),
    Sketcher.Constraint("DistanceY", 56, 3, 57, 3, Q("20 mm")),
    Sketcher.Constraint("DistanceY", 57, 3, 58, 3, Q("20 mm")),
    Sketcher.Constraint("DistanceY", 58, 3, 59, 3, Q("20 mm")),
    Sketcher.Constraint("DistanceY", 0, 3, -1, 1, Q("81.764833 mm")),
])
pocket2 = body.newObject("PartDesign::Pocket", "Pocket001")
pocket2.Profile = sketch3
pocket2.Length = 3.5
pocket2.Reversed = True

doc.recompute()
